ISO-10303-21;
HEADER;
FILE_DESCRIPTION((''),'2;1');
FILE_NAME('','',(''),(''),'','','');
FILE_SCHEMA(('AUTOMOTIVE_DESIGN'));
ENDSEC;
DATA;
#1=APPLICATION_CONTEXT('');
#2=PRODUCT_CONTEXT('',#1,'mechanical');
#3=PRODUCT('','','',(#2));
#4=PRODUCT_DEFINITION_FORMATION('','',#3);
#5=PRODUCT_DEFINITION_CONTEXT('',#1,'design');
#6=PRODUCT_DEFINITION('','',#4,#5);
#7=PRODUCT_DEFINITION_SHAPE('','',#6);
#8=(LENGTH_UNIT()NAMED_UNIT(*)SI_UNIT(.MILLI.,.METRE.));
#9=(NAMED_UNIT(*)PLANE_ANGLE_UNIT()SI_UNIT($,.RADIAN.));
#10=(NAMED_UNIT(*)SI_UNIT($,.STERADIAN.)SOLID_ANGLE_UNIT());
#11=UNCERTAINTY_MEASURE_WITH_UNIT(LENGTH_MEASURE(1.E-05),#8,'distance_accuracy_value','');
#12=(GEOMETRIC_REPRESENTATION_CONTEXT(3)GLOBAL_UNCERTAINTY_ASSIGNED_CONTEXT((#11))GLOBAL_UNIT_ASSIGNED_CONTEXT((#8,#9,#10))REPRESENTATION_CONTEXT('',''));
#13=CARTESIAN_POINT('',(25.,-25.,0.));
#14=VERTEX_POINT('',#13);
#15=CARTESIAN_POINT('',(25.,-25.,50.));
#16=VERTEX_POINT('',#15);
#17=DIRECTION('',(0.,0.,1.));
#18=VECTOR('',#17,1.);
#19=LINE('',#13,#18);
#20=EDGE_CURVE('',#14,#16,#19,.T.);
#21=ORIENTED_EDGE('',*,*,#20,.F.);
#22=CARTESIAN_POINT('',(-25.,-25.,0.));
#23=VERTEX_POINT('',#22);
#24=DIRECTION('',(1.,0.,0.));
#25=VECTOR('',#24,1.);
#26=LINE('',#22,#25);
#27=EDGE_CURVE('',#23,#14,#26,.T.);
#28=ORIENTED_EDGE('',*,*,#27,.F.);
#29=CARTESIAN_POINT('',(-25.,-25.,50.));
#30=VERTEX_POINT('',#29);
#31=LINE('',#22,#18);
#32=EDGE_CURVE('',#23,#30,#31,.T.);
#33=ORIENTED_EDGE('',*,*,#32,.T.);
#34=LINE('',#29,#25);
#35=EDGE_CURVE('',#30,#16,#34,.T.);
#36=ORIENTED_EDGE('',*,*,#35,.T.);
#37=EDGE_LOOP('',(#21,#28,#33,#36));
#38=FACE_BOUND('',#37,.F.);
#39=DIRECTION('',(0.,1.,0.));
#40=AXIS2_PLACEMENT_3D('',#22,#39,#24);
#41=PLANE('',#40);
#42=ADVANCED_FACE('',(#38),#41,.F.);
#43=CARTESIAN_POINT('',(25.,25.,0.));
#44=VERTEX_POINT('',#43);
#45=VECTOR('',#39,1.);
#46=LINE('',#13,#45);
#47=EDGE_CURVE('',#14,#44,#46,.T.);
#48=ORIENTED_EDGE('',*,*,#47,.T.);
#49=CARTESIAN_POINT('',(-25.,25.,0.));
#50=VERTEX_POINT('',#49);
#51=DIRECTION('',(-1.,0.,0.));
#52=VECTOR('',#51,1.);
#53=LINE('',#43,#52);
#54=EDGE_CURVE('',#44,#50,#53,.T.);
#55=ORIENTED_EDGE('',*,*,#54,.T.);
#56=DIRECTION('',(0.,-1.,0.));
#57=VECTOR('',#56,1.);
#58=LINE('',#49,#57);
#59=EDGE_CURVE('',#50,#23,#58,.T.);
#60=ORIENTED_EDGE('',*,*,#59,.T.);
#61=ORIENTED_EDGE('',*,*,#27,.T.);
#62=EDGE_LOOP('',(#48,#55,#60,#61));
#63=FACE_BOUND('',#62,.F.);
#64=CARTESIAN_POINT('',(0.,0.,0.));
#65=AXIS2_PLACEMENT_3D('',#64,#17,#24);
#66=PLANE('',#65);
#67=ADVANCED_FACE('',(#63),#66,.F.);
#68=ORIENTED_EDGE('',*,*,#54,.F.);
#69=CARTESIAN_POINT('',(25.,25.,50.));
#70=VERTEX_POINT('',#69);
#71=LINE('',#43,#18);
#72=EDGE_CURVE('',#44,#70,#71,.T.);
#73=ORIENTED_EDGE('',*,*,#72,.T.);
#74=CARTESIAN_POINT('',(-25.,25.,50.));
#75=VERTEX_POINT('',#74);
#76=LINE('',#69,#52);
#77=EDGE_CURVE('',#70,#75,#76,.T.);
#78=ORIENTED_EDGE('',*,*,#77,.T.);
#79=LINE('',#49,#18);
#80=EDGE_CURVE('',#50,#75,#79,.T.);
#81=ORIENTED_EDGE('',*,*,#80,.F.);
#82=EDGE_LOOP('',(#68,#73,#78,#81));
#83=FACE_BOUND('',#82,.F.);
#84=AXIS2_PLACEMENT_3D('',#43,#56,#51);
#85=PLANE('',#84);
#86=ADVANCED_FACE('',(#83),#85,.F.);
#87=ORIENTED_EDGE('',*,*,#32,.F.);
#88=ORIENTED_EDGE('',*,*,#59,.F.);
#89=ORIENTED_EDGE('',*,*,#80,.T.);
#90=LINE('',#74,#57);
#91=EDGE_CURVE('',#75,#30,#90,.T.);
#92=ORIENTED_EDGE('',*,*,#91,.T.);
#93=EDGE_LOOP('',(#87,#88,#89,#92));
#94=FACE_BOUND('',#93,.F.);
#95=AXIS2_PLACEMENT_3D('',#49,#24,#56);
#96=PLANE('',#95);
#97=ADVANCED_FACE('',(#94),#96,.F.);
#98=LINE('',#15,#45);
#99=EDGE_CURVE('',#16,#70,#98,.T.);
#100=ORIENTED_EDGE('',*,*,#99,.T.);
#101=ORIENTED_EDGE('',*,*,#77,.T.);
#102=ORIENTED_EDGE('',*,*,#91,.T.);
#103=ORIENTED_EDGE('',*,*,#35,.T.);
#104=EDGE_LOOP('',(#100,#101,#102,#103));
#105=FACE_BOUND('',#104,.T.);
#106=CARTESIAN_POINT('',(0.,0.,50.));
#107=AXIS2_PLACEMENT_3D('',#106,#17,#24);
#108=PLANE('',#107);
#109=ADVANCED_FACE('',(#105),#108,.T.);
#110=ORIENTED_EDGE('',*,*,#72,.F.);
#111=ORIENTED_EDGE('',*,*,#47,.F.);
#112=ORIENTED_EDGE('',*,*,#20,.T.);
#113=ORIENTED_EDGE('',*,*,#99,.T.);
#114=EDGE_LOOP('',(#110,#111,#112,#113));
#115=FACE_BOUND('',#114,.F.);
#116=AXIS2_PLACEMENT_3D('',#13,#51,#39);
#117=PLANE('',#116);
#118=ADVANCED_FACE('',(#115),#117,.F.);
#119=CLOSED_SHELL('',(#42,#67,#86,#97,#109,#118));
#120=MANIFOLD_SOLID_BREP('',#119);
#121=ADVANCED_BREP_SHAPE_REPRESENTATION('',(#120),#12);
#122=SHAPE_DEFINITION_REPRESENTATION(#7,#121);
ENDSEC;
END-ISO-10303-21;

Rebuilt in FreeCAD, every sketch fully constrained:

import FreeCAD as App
import Part
import Sketcher
Q = App.Units.Quantity


def add_polygon(sketch, points):
    """Adds a closed chain of lines whose ends are joined by coincident constraints."""
    first, n = sketch.GeometryCount, len(points)
    for a, b in zip(points, points[1:] + points[:1]):
        sketch.addGeometry(Part.LineSegment(App.Vector(*a, 0), App.Vector(*b, 0)), False)
    for i in range(n):
        sketch.addConstraint(Sketcher.Constraint("Coincident", first + i, 2, first + (i + 1) % n, 1))

doc = App.newDocument("Part")
body = doc.addObject("PartDesign::Body", "Body")

# Sketch on XY plane
sketch1 = doc.addObject("Sketcher::SketchObject", "Sketch")
body.addObject(sketch1)
sketch1.AttachmentSupport = (doc.XY_Plane, [""])
sketch1.MapMode = "FlatFace"
add_polygon(sketch1, [(-25, 25), (-25, -25), (25, -25), (25, 25)])  # lines 0-3
sketch1.addConstraint(Sketcher.Constraint("Vertical", 0))
sketch1.addConstraint(Sketcher.Constraint("Horizontal", 1))
sketch1.addConstraint(Sketcher.Constraint("Vertical", 2))
sketch1.addConstraint(Sketcher.Constraint("Horizontal", 3))
sketch1.addConstraint(Sketcher.Constraint("Symmetric", 0, 2, 2, 2, -1, 1))
sketch1.addConstraint(Sketcher.Constraint("Equal", 3, 0))
sketch1.addConstraint(Sketcher.Constraint("DistanceX", 1, 1, 1, 2, Q("50 mm")))
pad1 = doc.addObject("PartDesign::Pad", "Pad")
body.addObject(pad1)
pad1.Profile = sketch1
pad1.Length = 50

doc.recompute()
